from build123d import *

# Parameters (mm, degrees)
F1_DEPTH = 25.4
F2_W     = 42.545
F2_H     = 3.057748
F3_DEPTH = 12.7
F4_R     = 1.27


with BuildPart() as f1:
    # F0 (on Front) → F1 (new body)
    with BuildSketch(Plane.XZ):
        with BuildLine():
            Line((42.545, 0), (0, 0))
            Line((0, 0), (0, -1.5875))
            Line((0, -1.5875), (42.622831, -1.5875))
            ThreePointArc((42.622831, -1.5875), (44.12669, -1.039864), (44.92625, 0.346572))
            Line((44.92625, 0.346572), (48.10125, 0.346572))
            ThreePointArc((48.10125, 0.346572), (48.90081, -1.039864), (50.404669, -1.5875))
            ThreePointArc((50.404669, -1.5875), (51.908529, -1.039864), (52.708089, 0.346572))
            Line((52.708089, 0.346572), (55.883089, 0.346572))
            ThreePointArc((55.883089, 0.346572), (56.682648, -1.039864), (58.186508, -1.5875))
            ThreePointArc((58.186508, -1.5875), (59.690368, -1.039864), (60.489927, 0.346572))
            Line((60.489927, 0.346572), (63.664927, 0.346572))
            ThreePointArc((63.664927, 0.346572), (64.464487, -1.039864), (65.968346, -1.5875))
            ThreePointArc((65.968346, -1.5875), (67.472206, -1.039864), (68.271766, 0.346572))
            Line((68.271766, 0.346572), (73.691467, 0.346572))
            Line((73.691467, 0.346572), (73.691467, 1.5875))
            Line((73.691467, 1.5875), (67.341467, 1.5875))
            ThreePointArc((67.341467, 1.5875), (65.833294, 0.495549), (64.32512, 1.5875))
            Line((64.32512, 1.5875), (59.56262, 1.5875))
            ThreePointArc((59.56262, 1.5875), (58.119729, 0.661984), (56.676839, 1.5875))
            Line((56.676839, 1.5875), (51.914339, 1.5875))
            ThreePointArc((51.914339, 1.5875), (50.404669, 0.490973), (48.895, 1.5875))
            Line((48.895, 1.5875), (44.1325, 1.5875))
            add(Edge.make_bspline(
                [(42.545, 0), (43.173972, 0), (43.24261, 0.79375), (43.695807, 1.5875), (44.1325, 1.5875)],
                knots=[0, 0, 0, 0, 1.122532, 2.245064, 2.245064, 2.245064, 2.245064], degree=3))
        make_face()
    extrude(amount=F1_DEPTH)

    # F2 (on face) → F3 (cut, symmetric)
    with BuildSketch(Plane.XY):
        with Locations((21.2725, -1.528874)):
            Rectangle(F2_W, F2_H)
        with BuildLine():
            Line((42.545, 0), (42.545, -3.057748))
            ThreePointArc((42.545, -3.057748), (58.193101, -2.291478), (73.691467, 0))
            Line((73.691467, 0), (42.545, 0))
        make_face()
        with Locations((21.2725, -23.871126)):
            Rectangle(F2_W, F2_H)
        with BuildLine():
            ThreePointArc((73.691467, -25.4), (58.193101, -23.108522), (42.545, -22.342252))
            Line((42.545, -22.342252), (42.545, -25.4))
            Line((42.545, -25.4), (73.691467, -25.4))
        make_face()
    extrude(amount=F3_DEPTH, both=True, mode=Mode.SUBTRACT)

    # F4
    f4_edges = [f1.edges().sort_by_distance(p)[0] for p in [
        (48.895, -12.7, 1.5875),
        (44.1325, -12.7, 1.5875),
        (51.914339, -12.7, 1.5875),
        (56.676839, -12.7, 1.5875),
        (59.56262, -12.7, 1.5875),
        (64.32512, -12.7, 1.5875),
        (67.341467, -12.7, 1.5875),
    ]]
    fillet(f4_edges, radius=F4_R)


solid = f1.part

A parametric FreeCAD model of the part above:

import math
import FreeCAD as App
import Part
import Sketcher

V = App.Vector
Q = App.Units.Quantity


def edges_at(feature, points):
    """Names of the edges that pass closest to the given points."""
    edges = feature.Shape.Edges
    near = lambda p: min(range(len(edges)), key=lambda i: edges[i].distToShape(Part.Vertex(*p))[0])
    return sorted({f"Edge{near(p) + 1}" for p in points})

doc = App.newDocument("Part")
body = doc.addObject("PartDesign::Body", "Body")

sketch1 = body.newObject("Sketcher::SketchObject", "Sketch")
sketch1.AttachmentSupport = (doc.getObject("XZ_Plane"), [""])
sketch1.MapMode = "FlatFace"
sketch1.addGeometry([
    Part.LineSegment(V(42.545, 0, 0), V(0, 0, 0)),
    Part.LineSegment(V(0, 0, 0), V(0, -1.5875, 0)),
    Part.LineSegment(V(0, -1.5875, 0), V(42.622831, -1.5875, 0)),
    Part.ArcOfCircle(Part.Circle(V(42.622831, 0.751186, 0), V(0, 0, 1), 2.338686), math.radians(-90), math.radians(-9.962819)),
    Part.LineSegment(V(44.92625, 0.346572, 0), V(48.10125, 0.346572, 0)),
    Part.ArcOfCircle(Part.Circle(V(50.404669, 0.751186, 0), V(0, 0, 1), 2.338686), math.radians(-170.037181), math.radians(-90)),
    Part.ArcOfCircle(Part.Circle(V(50.40467, 0.751186, 0), V(0, 0, 1), 2.338686), math.radians(-90.000024), math.radians(-9.962819)),
    Part.LineSegment(V(52.708089, 0.346572, 0), V(55.883089, 0.346572, 0)),
    Part.ArcOfCircle(Part.Circle(V(58.186506, 0.751184, 0), V(0, 0, 1), 2.338684), math.radians(-170.037224), math.radians(-89.999957)),
    Part.ArcOfCircle(Part.Circle(V(58.18651, 0.751184, 0), V(0, 0, 1), 2.338684), math.radians(-90.000043), math.radians(-9.962776)),
    Part.LineSegment(V(60.489927, 0.346572, 0), V(63.664927, 0.346572, 0)),
    Part.ArcOfCircle(Part.Circle(V(65.968346, 0.751186, 0), V(0, 0, 1), 2.338686), math.radians(-170.037181), math.radians(-90)),
    Part.ArcOfCircle(Part.Circle(V(65.968347, 0.751186, 0), V(0, 0, 1), 2.338686), math.radians(-90.000024), math.radians(-9.962819)),
    Part.LineSegment(V(68.271766, 0.346572, 0), V(73.691467, 0.346572, 0)),
    Part.LineSegment(V(73.691467, 0.346572, 0), V(73.691467, 1.5875, 0)),
    Part.LineSegment(V(73.691467, 1.5875, 0), V(67.341467, 1.5875, 0)),
    Part.ArcOfCircle(Part.Circle(V(65.833293, 2.083049, 0), V(0, 0, 1), 1.5875), math.radians(-161.810741), math.radians(-18.189259)),
    Part.LineSegment(V(64.32512, 1.5875, 0), V(59.56262, 1.5875, 0)),
    Part.ArcOfCircle(Part.Circle(V(58.119729, 2.249484, 0), V(0, 0, 1), 1.5875), math.radians(-155.354815), math.radians(-24.645185)),
    Part.LineSegment(V(56.676839, 1.5875, 0), V(51.914339, 1.5875, 0)),
    Part.ArcOfCircle(Part.Circle(V(50.404669, 2.078473, 0), V(0, 0, 1), 1.5875), math.radians(-161.984493), math.radians(-18.015507)),
    Part.LineSegment(V(48.895, 1.5875, 0), V(44.1325, 1.5875, 0)),
    Part.BSplineCurve([V(42.545, 0, 0), V(43.173972, 0, 0), V(43.24261, 0.79375, 0), V(43.695807, 1.5875, 0), V(44.1325, 1.5875, 0)], [4, 1, 4], [0, 1.122532, 2.245064], False, 3, [1, 1, 1, 1, 1], False),
], False)
sketch1.addConstraint([
    Sketcher.Constraint("Block", 22),
    Sketcher.Constraint("Coincident", 0, 2, 1, 1),
    Sketcher.Constraint("Coincident", 1, 2, 2, 1),
    Sketcher.Constraint("Tangent", 2, 2, 3, 1),
    Sketcher.Constraint("Coincident", 3, 2, 4, 1),
    Sketcher.Constraint("Coincident", 4, 2, 5, 1),
    Sketcher.Constraint("Tangent", 5, 2, 6, 1),
    Sketcher.Constraint("Coincident", 6, 2, 7, 1),
    Sketcher.Constraint("Coincident", 7, 2, 8, 1),
    Sketcher.Constraint("Tangent", 8, 2, 9, 1),
    Sketcher.Constraint("Coincident", 9, 2, 10, 1),
    Sketcher.Constraint("Coincident", 10, 2, 11, 1),
    Sketcher.Constraint("Tangent", 11, 2, 12, 1),
    Sketcher.Constraint("Coincident", 12, 2, 13, 1),
    Sketcher.Constraint("Coincident", 13, 2, 14, 1),
    Sketcher.Constraint("Coincident", 14, 2, 15, 1),
    Sketcher.Constraint("Coincident", 15, 2, 16, 2),
    Sketcher.Constraint("Coincident", 16, 1, 17, 1),
    Sketcher.Constraint("Coincident", 17, 2, 18, 2),
    Sketcher.Constraint("Coincident", 18, 1, 19, 1),
    Sketcher.Constraint("Coincident", 19, 2, 20, 2),
    Sketcher.Constraint("Coincident", 20, 1, 21, 1),
    Sketcher.Constraint("Coincident", 21, 2, 22, 2),
    Sketcher.Constraint("Coincident", 22, 1, 0, 1),
    Sketcher.Constraint("Horizontal", 0),
    Sketcher.Constraint("Vertical", 1),
    Sketcher.Constraint("Horizontal", 2),
    Sketcher.Constraint("Horizontal", 4),
    Sketcher.Constraint("Horizontal", 7),
    Sketcher.Constraint("Horizontal", 10),
    Sketcher.Constraint("Horizontal", 13),
    Sketcher.Constraint("Vertical", 14),
    Sketcher.Constraint("Horizontal", 15),
    Sketcher.Constraint("Horizontal", 17),
    Sketcher.Constraint("Horizontal", 19),
    Sketcher.Constraint("Horizontal", 21),
    Sketcher.Constraint("Equal", 3, 5),
    Sketcher.Constraint("Equal", 5, 6),
    Sketcher.Constraint("Equal", 8, 9),
    Sketcher.Constraint("Equal", 6, 11),
    Sketcher.Constraint("Equal", 11, 12),
    Sketcher.Constraint("Equal", 16, 18),
    Sketcher.Constraint("Equal", 18, 20),
    Sketcher.Constraint("PointOnObject", 1, 2, -2),
    Sketcher.Constraint("Horizontal", 3, 3, 5, 3),
    Sketcher.Constraint("Horizontal", 6, 3, 11, 3),
    Sketcher.Constraint("Horizontal", 4, 2, 6, 2),
    Sketcher.Constraint("Horizontal", 5, 2, 8, 2),
    Sketcher.Constraint("Horizontal", 7, 2, 9, 2),
    Sketcher.Constraint("Horizontal", 10, 2, 12, 2),
    Sketcher.Constraint("Horizontal", 15, 2, 16, 1),
    Sketcher.Constraint("Horizontal", 17, 2, 18, 1),
    Sketcher.Constraint("Horizontal", 19, 2, 20, 1),
    Sketcher.Constraint("Vertical", 6, 3, 20, 3),
    Sketcher.Constraint("Vertical", 20, 3, 5, 2),
    Sketcher.Constraint("Vertical", 9, 3, 8, 2),
    Sketcher.Constraint("Vertical", 12, 3, 11, 2),
    Sketcher.Constraint("Equal", 4, 7),
    Sketcher.Constraint("Equal", 7, 10),
    Sketcher.Constraint("Equal", 17, 19),
    Sketcher.Constraint("Equal", 19, 21),
    Sketcher.Constraint("Radius", 16, Q("0.0625 in")),
    Sketcher.Constraint("DistanceX", 15, 2, 15, 1, Q("0.25 in")),
    Sketcher.Constraint("DistanceX", 4, 1, 4, 2, Q("0.125 in")),
    Sketcher.Constraint("DistanceX", 17, 2, 17, 1, Q("0.1875 in")),
    Sketcher.Constraint("DistanceY", 1, 2, 1, 1, Q("0.0625 in")),
    Sketcher.Constraint("DistanceX", 7, 2, 18, 1, Q("0.03125 in")),
    Sketcher.Constraint("DistanceX", 13, 1, 13, 2, Q("5.419701 mm")),
    Sketcher.Constraint("Radius", 3, Q("2.338686 mm")),
    Sketcher.Constraint("Radius", 8, Q("2.338684 mm")),
    Sketcher.Constraint("DistanceX", 2, 1, 2, 2, Q("42.622831 mm")),
    Sketcher.Constraint("DistanceY", 8, 3, 18, 3, Q("1.4983 mm")),
])
pad1 = body.newObject("PartDesign::Pad", "Pad")
pad1.Profile = sketch1
pad1.Length = Q("1 in")

sketch2 = body.newObject("Sketcher::SketchObject", "Sketch001")
sketch2.AttachmentSupport = (doc.getObject("XY_Plane"), [""])
sketch2.MapMode = "FlatFace"
sketch2.addGeometry([
    Part.LineSegment(V(0, 0, 0), V(0, -3.1, 0)),
    Part.LineSegment(V(0, -3.1, 0), V(42.5, -3.1, 0)),
    Part.ArcOfCircle(Part.Circle(V(42.5, 157.1, 0), V(0, 0, 1), 160.2), math.radians(-90), math.radians(-78.79)),
    Part.LineSegment(V(73.7, 0, 0), V(0, 0, 0)),
    Part.LineSegment(V(0, -22.3, 0), V(0, -25.4, 0)),
    Part.LineSegment(V(0, -25.4, 0), V(73.7, -25.4, 0)),
    Part.ArcOfCircle(Part.Circle(V(42.5, -182.5, 0), V(0, 0, 1), 160.2), math.radians(78.79), math.radians(90)),
    Part.LineSegment(V(42.5, -22.3, 0), V(0, -22.3, 0)),
], False)
sketch2.addConstraint([
    Sketcher.Constraint("Coincident", 0, 2, 1, 1),
    Sketcher.Constraint("Tangent", 1, 2, 2, 1),
    Sketcher.Constraint("Coincident", 2, 2, 3, 1),
    Sketcher.Constraint("Coincident", 3, 2, 0, 1),
    Sketcher.Constraint("Coincident", 4, 2, 5, 1),
    Sketcher.Constraint("Coincident", 5, 2, 6, 1),
    Sketcher.Constraint("Tangent", 6, 2, 7, 1),
    Sketcher.Constraint("Coincident", 7, 2, 4, 1),
    Sketcher.Constraint("Vertical", 0),
    Sketcher.Constraint("Horizontal", 1),
    Sketcher.Constraint("Horizontal", 3),
    Sketcher.Constraint("Vertical", 4),
    Sketcher.Constraint("Horizontal", 5),
    Sketcher.Constraint("Horizontal", 7),
    Sketcher.Constraint("Coincident", 3, 2, -1, 1),
    Sketcher.Constraint("Equal", 2, 6),
    Sketcher.Constraint("PointOnObject", 4, 2, -2),
    Sketcher.Constraint("Vertical", 2, 3, 6, 3),
    Sketcher.Constraint("Vertical", 2, 2, 5, 2),
    Sketcher.Constraint("DistanceY", 4, 2, -1, 1, Q("1 in")),
    Sketcher.Constraint("DistanceX", 1, 1, 1, 2, Q("1.675 in")),
    Sketcher.Constraint("Radius", 2, Q("160.159061 mm")),
    Sketcher.Constraint("DistanceY", 0, 2, 0, 1, Q("3.057748 mm")),
])
pocket1 = body.newObject("PartDesign::Pocket", "Pocket")
pocket1.Profile = sketch2
pocket1.Length = Q("1 in")
pocket1.Midplane = True
doc.recompute()

fillet = body.newObject("PartDesign::Fillet", "Fillet")
fillet.Base = (pocket1, edges_at(pocket1, [
    (48.895, -12.7, 1.587),
    (44.133, -12.7, 1.587),
    (51.914, -12.7, 1.587),
    (56.677, -12.7, 1.587),
    (59.563, -12.7, 1.587),
    (64.325, -12.7, 1.587),
    (67.341, -12.7, 1.587),
]))
fillet.Radius = Q("0.05 in")

doc.recompute()
